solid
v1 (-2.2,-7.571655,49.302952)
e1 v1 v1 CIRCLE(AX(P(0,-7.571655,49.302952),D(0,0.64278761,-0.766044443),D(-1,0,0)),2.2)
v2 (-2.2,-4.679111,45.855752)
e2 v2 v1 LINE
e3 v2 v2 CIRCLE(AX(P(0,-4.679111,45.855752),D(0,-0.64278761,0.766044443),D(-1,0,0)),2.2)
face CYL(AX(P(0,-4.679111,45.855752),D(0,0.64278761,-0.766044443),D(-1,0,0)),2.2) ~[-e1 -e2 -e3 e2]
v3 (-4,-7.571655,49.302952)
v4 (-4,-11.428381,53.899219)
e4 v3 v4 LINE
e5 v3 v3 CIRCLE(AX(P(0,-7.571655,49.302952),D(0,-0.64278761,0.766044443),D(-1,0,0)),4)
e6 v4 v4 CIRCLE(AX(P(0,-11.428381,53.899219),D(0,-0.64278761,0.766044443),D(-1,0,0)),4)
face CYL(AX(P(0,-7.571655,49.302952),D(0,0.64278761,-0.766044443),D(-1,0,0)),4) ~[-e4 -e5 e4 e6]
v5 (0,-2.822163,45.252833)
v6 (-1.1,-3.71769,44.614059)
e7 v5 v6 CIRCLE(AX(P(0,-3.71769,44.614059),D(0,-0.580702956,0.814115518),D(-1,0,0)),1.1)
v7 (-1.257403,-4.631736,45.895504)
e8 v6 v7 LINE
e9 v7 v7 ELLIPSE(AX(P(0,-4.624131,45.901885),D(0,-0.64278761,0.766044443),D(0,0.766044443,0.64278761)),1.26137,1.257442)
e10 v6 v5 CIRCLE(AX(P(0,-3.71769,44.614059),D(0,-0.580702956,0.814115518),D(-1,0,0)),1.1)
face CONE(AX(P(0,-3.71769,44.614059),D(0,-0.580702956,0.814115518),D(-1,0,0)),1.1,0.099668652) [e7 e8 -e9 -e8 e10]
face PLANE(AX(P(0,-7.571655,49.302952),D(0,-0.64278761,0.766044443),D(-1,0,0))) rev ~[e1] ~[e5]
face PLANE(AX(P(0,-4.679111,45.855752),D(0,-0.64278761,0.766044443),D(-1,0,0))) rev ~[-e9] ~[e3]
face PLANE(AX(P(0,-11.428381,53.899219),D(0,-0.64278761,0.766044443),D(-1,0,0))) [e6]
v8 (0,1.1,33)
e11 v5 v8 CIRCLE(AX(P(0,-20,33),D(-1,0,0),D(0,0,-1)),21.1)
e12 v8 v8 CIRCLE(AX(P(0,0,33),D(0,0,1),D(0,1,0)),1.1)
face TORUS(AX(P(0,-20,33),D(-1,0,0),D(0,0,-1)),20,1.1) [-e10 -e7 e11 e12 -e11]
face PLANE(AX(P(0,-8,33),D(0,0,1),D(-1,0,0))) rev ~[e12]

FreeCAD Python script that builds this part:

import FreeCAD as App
import Part
import Sketcher
Q = App.Units.Quantity


def add_polygon(sketch, points):
    """Adds a closed chain of lines whose ends are joined by coincident constraints."""
    first, n = sketch.GeometryCount, len(points)
    for a, b in zip(points, points[1:] + points[:1]):
        sketch.addGeometry(Part.LineSegment(App.Vector(*a, 0), App.Vector(*b, 0)), False)
    for i in range(n):
        sketch.addConstraint(Sketcher.Constraint("Coincident", first + i, 2, first + (i + 1) % n, 1))

doc = App.newDocument("Part")
body = doc.addObject("PartDesign::Body", "Body")

# Sketch on XZ plane
sketch1 = body.newObject("Sketcher::SketchObject", "Sketch")
sketch1.AttachmentSupport = (doc.getObject("XZ_Plane"), [""])
sketch1.MapMode = "FlatFace"
add_polygon(sketch1, [(0, 0), (1.1, 0), (1.3, 2), (0, 2)])  # lines 0-3
sketch1.addConstraint(Sketcher.Constraint("Horizontal", 0))
sketch1.addConstraint(Sketcher.Constraint("Horizontal", 2))
sketch1.addConstraint(Sketcher.Constraint("Vertical", 3))
sketch1.addConstraint(Sketcher.Constraint("Coincident", 3, 2, -1, 1))
sketch1.addConstraint(Sketcher.Constraint("DistanceY", 3, 2, 3, 1, Q("2 mm")))
sketch1.addConstraint(Sketcher.Constraint("DistanceX", 0, 1, 0, 2, Q("1.1 mm")))
sketch1.addConstraint(Sketcher.Constraint("DistanceX", 2, 2, 2, 1, Q("1.3 mm")))
revolution = body.newObject("PartDesign::Revolution", "Revolution")
revolution.Profile = sketch1
revolution.ReferenceAxis = (sketch1, ["V_Axis"])
revolution.Angle = 360
body2 = doc.addObject("PartDesign::Body", "Body001")
doc.recompute()

body.Placement = App.Placement(App.Vector(0, 0, 0), App.Rotation(App.Vector(1, 0, 0), 324.5))
boolean = body2.newObject("PartDesign::Boolean", "Boolean")
boolean.Type = "Fuse"
boolean.addObjects([body])
body3 = doc.addObject("PartDesign::Body", "Body002")
doc.recompute()

body2.Placement = App.Placement(App.Vector(0, 3.71769, 11.614059), App.Rotation(App.Vector(0, 0, 1), 0))
boolean2 = body3.newObject("PartDesign::Boolean", "Boolean001")
boolean2.Type = "Fuse"
boolean2.addObjects([body2])
body4 = doc.addObject("PartDesign::Body", "Body003")

# Sketch on XY plane
sketch2 = body4.newObject("Sketcher::SketchObject", "Sketch001")
sketch2.AttachmentSupport = (doc.getObject("XY_Plane003"), [""])
sketch2.MapMode = "FlatFace"
add_polygon(sketch2, [(0, 24), (0, 0), (10, 0), (10, 24)])  # lines 0-3
sketch2.addConstraint(Sketcher.Constraint("Vertical", 0))
sketch2.addConstraint(Sketcher.Constraint("Horizontal", 1))
sketch2.addConstraint(Sketcher.Constraint("Vertical", 2))
sketch2.addConstraint(Sketcher.Constraint("Horizontal", 3))
sketch2.addConstraint(Sketcher.Constraint("Coincident", 0, 2, -1, 1))
sketch2.addConstraint(Sketcher.Constraint("DistanceX", 1, 1, 1, 2, Q("10 mm")))
sketch2.addConstraint(Sketcher.Constraint("DistanceY", 0, 2, 0, 1, Q("24 mm")))
pad1 = body4.newObject("PartDesign::Pad", "Pad")
pad1.Profile = sketch2
pad1.Length = 22
body5 = doc.addObject("PartDesign::Body", "Body004")
doc.recompute()

body4.Placement = App.Placement(App.Vector(0, 0, 0), App.Rotation(App.Vector(1, 0, 0), 324.5))
boolean3 = body5.newObject("PartDesign::Boolean", "Boolean002")
boolean3.Type = "Fuse"
boolean3.addObjects([body4])
body6 = doc.addObject("PartDesign::Body", "Body005")
doc.recompute()

body5.Placement = App.Placement(App.Vector(-5, 0.461228, 13.936871), App.Rotation(App.Vector(0, 0, 1), 0))
boolean4 = body6.newObject("PartDesign::Boolean", "Boolean003")
boolean4.Type = "Fuse"
boolean4.addObjects([body5])
body7 = doc.addObject("PartDesign::Body", "Body006")

# Sketch on XY plane
sketch3 = body7.newObject("Sketcher::SketchObject", "Sketch002")
sketch3.AttachmentSupport = (doc.getObject("XY_Plane006"), [""])
sketch3.MapMode = "FlatFace"
add_polygon(sketch3, [(-5, 20), (-5, -4), (5, -4), (5, 20)])  # lines 0-3
sketch3.addConstraint(Sketcher.Constraint("Vertical", 0))
sketch3.addConstraint(Sketcher.Constraint("Horizontal", 1))
sketch3.addConstraint(Sketcher.Constraint("Vertical", 2))
sketch3.addConstraint(Sketcher.Constraint("Horizontal", 3))
sketch3.addConstraint(Sketcher.Constraint("DistanceX", 1, 1, 1, 2, Q("10 mm")))
sketch3.addConstraint(Sketcher.Constraint("DistanceY", 0, 2, 0, 1, Q("24 mm")))
sketch3.addConstraint(Sketcher.Constraint("DistanceX", 0, 2, -1, 1, Q("5 mm")))
sketch3.addConstraint(Sketcher.Constraint("DistanceY", 0, 2, -1, 1, Q("4 mm")))
pad2 = body7.newObject("PartDesign::Pad", "Pad001")
pad2.Profile = sketch3
pad2.Length = 22
body8 = doc.addObject("PartDesign::Body", "Body007")

# Sketch on XZ plane
sketch4 = body8.newObject("Sketcher::SketchObject", "Sketch003")
sketch4.AttachmentSupport = (doc.getObject("XZ_Plane007"), [""])
sketch4.MapMode = "FlatFace"
sketch4.addGeometry(Part.Circle(App.Vector(20, 0, 0), App.Vector(0, 0, 1), 1.1), False)
sketch4.addConstraint(Sketcher.Constraint("PointOnObject", 0, 3, -1))
sketch4.addConstraint(Sketcher.Constraint("Diameter", 0, Q("2.2 mm")))
sketch4.addConstraint(Sketcher.Constraint("DistanceX", -1, 1, 0, 3, Q("20 mm")))
revolution2 = body8.newObject("PartDesign::Revolution", "Revolution001")
revolution2.Profile = sketch4
revolution2.ReferenceAxis = (sketch4, ["V_Axis"])
revolution2.Angle = 360
body9 = doc.addObject("PartDesign::Body", "Body008")
doc.recompute()

body8.Placement = App.Placement(App.Vector(0, 0, 0), App.Rotation(App.Vector(0, 1, 0), 90))
boolean5 = body9.newObject("PartDesign::Boolean", "Boolean004")
boolean5.Type = "Fuse"
boolean5.addObjects([body8])
body10 = doc.addObject("PartDesign::Body", "Body009")
doc.recompute()

body9.Placement = App.Placement(App.Vector(0, 20, 0), App.Rotation(App.Vector(0, 0, 1), 0))
boolean6 = body10.newObject("PartDesign::Boolean", "Boolean005")
boolean6.Type = "Fuse"
boolean6.addObjects([body9])
doc.recompute()

boolean7 = body10.newObject("PartDesign::Boolean", "Boolean006")
boolean7.Type = "Common"
boolean7.addObjects([body7])
doc.recompute()

boolean8 = body10.newObject("PartDesign::Boolean", "Boolean007")
boolean8.Type = "Cut"
boolean8.addObjects([body6])
body11 = doc.addObject("PartDesign::Body", "Body010")

# Sketch on XY plane
sketch5 = body11.newObject("Sketcher::SketchObject", "Sketch004")
sketch5.AttachmentSupport = (doc.getObject("XY_Plane010"), [""])
sketch5.MapMode = "FlatFace"
sketch5.addGeometry(Part.Circle(App.Vector(0, 0, 0), App.Vector(0, 0, 1), 4), False)
sketch5.addConstraint(Sketcher.Constraint("Coincident", 0, 3, -1, 1))
sketch5.addConstraint(Sketcher.Constraint("Diameter", 0, Q("8 mm")))
pad3 = body11.newObject("PartDesign::Pad", "Pad002")
pad3.Profile = sketch5
pad3.Length = 6
body12 = doc.addObject("PartDesign::Body", "Body011")
doc.recompute()

body11.Placement = App.Placement(App.Vector(0, 0, 0), App.Rotation(App.Vector(1, 0, 0), 320))
boolean9 = body12.newObject("PartDesign::Boolean", "Boolean008")
boolean9.Type = "Fuse"
boolean9.addObjects([body11])
body13 = doc.addObject("PartDesign::Body", "Body012")
doc.recompute()

body12.Placement = App.Placement(App.Vector(0, 7.571655, 16.302952), App.Rotation(App.Vector(0, 0, 1), 0))
boolean10 = body13.newObject("PartDesign::Boolean", "Boolean009")
boolean10.Type = "Fuse"
boolean10.addObjects([body12])
body14 = doc.addObject("PartDesign::Body", "Body013")

# Sketch on XY plane
sketch6 = body14.newObject("Sketcher::SketchObject", "Sketch005")
sketch6.AttachmentSupport = (doc.getObject("XY_Plane013"), [""])
sketch6.MapMode = "FlatFace"
sketch6.addGeometry(Part.Circle(App.Vector(0, 0, 0), App.Vector(0, 0, 1), 2.2), False)
sketch6.addConstraint(Sketcher.Constraint("Coincident", 0, 3, -1, 1))
sketch6.addConstraint(Sketcher.Constraint("Diameter", 0, Q("4.4 mm")))
pad4 = body14.newObject("PartDesign::Pad", "Pad003")
pad4.Profile = sketch6
pad4.Length = 10
body15 = doc.addObject("PartDesign::Body", "Body014")
doc.recompute()

body14.Placement = App.Placement(App.Vector(0, 0, 0), App.Rotation(App.Vector(1, 0, 0), 320))
boolean11 = body15.newObject("PartDesign::Boolean", "Boolean010")
boolean11.Type = "Fuse"
boolean11.addObjects([body14])
body16 = doc.addObject("PartDesign::Body", "Body015")
doc.recompute()

body15.Placement = App.Placement(App.Vector(0, 4.679111, 12.855752), App.Rotation(App.Vector(0, 0, 1), 0))
boolean12 = body16.newObject("PartDesign::Boolean", "Boolean011")
boolean12.Type = "Fuse"
boolean12.addObjects([body15])
doc.recompute()

boolean13 = body16.newObject("PartDesign::Boolean", "Boolean012")
boolean13.Type = "Fuse"
boolean13.addObjects([body3])
doc.recompute()

boolean14 = body16.newObject("PartDesign::Boolean", "Boolean013")
boolean14.Type = "Fuse"
boolean14.addObjects([body10])
doc.recompute()

boolean15 = body16.newObject("PartDesign::Boolean", "Boolean014")
boolean15.Type = "Fuse"
boolean15.addObjects([body13])
body17 = doc.addObject("PartDesign::Body", "Body016")
doc.recompute()

body16.Placement = App.Placement(App.Vector(0, 0, 33), App.Rotation(App.Vector(0, 0, 1), 180))
boolean16 = body17.newObject("PartDesign::Boolean", "Boolean015")
boolean16.Type = "Fuse"
boolean16.addObjects([body16])

doc.recompute()
